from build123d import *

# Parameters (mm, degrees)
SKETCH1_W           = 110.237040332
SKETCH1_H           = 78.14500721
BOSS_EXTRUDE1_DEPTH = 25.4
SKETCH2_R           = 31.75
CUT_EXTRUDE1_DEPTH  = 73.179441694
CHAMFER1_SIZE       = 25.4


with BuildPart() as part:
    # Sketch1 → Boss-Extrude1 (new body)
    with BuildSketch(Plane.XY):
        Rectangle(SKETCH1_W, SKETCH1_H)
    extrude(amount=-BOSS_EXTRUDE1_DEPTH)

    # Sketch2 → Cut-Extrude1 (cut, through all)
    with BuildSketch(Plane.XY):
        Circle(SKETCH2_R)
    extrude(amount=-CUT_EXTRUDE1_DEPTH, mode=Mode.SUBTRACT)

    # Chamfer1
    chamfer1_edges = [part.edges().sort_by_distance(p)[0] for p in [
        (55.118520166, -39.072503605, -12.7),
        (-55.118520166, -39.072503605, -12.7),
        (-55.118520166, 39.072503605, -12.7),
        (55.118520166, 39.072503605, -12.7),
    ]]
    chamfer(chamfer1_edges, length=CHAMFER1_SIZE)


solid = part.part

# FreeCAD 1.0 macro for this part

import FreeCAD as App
import Part
import Sketcher
Q = App.Units.Quantity


def edges_at(feature, points):
    """Names of the edges that pass closest to the given points."""
    edges = feature.Shape.Edges
    near = lambda p: min(range(len(edges)), key=lambda i: edges[i].distToShape(Part.Vertex(*p))[0])
    return sorted({f"Edge{near(p) + 1}" for p in points})


def add_polygon(sketch, points):
    """Adds a closed chain of lines whose ends are joined by coincident constraints."""
    first, n = sketch.GeometryCount, len(points)
    for a, b in zip(points, points[1:] + points[:1]):
        sketch.addGeometry(Part.LineSegment(App.Vector(*a, 0), App.Vector(*b, 0)), False)
    for i in range(n):
        sketch.addConstraint(Sketcher.Constraint("Coincident", first + i, 2, first + (i + 1) % n, 1))

doc = App.newDocument("Part")
params = doc.addObject("Spreadsheet::Sheet", "Params")
for row, (alias, value) in enumerate([
    ("pad1_length", "1 in"),
    ("sketch2_diameter", "2.5 in"),
    ("chamfer_size", "1 in"),
], start=1):
    params.set(f"A{row}", alias)
    params.set(f"B{row}", "=" + value)
    params.setAlias(f"B{row}", alias)

body = doc.addObject("PartDesign::Body", "Body")

sketch1 = body.newObject("Sketcher::SketchObject", "Sketch")
sketch1.AttachmentSupport = (doc.getObject("XY_Plane"), [""])
sketch1.MapMode = "FlatFace"
add_polygon(sketch1, [(-55, 39), (-55, -39), (55, -39), (55, 39)])
sketch1.addConstraint(Sketcher.Constraint("Vertical", 0))
sketch1.addConstraint(Sketcher.Constraint("Horizontal", 1))
sketch1.addConstraint(Sketcher.Constraint("Vertical", 2))
sketch1.addConstraint(Sketcher.Constraint("Horizontal", 3))
sketch1.addConstraint(Sketcher.Constraint("Symmetric", 0, 2, 2, 2, -1, 1))
sketch1.addConstraint(Sketcher.Constraint("DistanceX", 1, 1, 1, 2, 110.23704))
sketch1.addConstraint(Sketcher.Constraint("DistanceY", 0, 2, 0, 1, 78.145007))
pad1 = body.newObject("PartDesign::Pad", "Pad")
pad1.Profile = sketch1
pad1.setExpression("Length", "Params.pad1_length")
pad1.Reversed = True

sketch2 = body.newObject("Sketcher::SketchObject", "Sketch001")
sketch2.AttachmentSupport = (doc.getObject("XY_Plane"), [""])
sketch2.MapMode = "FlatFace"
sketch2.addGeometry(Part.Circle(App.Vector(0, 0, 0), App.Vector(0, 0, 1), 32), False)
sketch2.addConstraint(Sketcher.Constraint("Coincident", 0, 3, -1, 1))
sketch2.addConstraint(Sketcher.Constraint("Diameter", 0, Q("2.5 in")))
sketch2.setExpression("Constraints[1]", "Params.sketch2_diameter")
pocket1 = body.newObject("PartDesign::Pocket", "Pocket")
pocket1.Profile = sketch2
pocket1.Type = "ThroughAll"
doc.recompute()

chamfer = body.newObject("PartDesign::Chamfer", "Chamfer")
chamfer.Base = (pocket1, edges_at(pocket1, [
    (55.119, -39.073, -12.7),
    (-55.119, -39.073, -12.7),
    (-55.119, 39.073, -12.7),
    (55.119, 39.073, -12.7),
]))
chamfer.setExpression("Size", "Params.chamfer_size")

doc.recompute()
